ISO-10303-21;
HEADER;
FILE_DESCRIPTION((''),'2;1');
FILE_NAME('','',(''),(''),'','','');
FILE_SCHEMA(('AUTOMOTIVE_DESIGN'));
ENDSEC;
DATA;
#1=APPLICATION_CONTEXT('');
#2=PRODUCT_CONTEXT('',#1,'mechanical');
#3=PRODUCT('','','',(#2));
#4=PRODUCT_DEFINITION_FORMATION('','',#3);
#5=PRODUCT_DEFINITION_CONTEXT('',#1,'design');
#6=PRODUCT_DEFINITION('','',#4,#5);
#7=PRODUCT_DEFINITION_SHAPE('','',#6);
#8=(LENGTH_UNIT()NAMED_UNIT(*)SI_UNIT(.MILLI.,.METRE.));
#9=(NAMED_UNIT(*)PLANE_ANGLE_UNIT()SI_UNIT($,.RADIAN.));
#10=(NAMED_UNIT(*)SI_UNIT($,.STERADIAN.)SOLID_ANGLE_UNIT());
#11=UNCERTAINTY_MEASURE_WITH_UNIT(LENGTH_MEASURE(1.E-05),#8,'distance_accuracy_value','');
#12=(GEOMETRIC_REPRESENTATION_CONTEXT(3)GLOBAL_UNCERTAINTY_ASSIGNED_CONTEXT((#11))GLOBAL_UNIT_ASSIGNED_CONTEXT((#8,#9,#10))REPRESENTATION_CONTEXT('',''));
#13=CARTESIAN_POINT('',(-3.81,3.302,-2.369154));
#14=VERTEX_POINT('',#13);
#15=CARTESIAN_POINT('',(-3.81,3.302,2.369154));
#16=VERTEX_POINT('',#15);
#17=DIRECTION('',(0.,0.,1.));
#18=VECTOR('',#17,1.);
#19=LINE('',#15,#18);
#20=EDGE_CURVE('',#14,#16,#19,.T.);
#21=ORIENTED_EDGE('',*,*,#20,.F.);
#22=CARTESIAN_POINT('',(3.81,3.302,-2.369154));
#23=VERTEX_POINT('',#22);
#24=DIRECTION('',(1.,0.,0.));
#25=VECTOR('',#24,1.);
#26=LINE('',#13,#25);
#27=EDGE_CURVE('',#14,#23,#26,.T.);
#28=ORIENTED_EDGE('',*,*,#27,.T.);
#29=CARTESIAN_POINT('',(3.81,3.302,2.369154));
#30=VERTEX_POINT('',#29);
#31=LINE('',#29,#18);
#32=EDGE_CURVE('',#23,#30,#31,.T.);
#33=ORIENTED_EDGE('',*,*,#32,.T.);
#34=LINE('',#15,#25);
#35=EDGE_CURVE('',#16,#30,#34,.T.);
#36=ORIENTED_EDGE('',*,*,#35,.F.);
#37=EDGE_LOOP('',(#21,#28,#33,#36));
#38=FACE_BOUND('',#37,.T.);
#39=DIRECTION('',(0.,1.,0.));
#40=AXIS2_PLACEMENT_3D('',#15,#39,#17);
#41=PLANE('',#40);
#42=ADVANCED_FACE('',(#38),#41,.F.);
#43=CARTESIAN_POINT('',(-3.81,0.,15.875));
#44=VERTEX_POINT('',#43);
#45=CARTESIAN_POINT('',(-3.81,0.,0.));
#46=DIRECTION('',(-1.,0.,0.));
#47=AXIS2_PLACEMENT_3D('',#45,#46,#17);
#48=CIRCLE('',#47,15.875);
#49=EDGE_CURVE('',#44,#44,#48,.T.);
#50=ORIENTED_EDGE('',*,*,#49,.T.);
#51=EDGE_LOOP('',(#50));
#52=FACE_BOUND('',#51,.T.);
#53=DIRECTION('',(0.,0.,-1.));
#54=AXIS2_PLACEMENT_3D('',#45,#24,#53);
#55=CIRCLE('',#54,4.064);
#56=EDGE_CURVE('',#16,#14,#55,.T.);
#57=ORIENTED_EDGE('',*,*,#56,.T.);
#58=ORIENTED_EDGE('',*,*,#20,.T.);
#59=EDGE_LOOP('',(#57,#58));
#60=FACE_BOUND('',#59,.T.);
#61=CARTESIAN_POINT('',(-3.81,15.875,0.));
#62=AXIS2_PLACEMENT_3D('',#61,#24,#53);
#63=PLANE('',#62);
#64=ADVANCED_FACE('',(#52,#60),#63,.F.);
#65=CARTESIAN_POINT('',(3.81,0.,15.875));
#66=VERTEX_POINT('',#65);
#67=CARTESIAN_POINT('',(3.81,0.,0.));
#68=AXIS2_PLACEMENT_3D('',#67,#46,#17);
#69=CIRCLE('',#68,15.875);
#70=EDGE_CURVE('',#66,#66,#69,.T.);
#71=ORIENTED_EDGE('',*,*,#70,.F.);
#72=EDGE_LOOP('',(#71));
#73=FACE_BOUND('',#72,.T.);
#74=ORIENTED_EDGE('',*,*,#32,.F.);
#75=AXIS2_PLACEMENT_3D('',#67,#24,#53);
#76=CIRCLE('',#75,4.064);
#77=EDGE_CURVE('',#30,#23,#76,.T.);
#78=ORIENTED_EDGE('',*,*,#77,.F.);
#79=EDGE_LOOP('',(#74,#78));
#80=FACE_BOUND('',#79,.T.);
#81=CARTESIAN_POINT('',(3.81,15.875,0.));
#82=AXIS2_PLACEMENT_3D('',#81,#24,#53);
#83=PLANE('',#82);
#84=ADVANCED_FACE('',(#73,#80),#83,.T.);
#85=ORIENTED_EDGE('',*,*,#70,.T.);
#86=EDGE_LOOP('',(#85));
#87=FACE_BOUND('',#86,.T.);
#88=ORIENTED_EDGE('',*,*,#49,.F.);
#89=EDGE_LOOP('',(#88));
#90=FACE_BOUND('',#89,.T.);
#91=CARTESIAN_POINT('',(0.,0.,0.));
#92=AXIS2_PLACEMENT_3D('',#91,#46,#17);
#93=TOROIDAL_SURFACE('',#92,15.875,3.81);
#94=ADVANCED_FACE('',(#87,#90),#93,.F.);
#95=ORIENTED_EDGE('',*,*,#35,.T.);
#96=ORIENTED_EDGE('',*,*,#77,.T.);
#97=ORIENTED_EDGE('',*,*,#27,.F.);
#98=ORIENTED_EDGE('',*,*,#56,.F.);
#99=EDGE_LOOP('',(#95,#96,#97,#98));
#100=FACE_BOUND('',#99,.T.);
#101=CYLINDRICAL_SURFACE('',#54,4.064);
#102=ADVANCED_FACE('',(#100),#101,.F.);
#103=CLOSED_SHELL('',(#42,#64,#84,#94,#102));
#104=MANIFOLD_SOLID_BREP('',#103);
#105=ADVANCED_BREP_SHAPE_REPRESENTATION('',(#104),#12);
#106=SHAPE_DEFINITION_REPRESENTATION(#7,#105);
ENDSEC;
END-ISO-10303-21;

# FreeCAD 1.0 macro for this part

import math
import FreeCAD as App
import Part
import Sketcher
Q = App.Units.Quantity

doc = App.newDocument("Part")
body = doc.addObject("PartDesign::Body", "Body")

# Sketch on XY plane
sketch1 = doc.addObject("Sketcher::SketchObject", "Sketch")
body.addObject(sketch1)
sketch1.AttachmentSupport = (doc.XY_Plane, [""])
sketch1.MapMode = "FlatFace"
sketch1.addGeometry([
    Part.LineSegment(App.Vector(-3.8, 15.9, 0), App.Vector(-3.8, 0, 0)),
    Part.LineSegment(App.Vector(-3.8, 0, 0), App.Vector(3.8, 0, 0)),
    Part.LineSegment(App.Vector(3.8, 0, 0), App.Vector(3.8, 15.9, 0)),
    Part.ArcOfCircle(Part.Circle(App.Vector(0, 15.9, 0), App.Vector(0, 0, 1), 3.8), math.radians(180), math.radians(360)),
], False)
sketch1.addConstraint([
    Sketcher.Constraint("Coincident", 0, 2, 1, 1),
    Sketcher.Constraint("Coincident", 1, 2, 2, 1),
    Sketcher.Constraint("Tangent", 2, 2, 3, 2),
    Sketcher.Constraint("Tangent", 3, 1, 0, 1),
    Sketcher.Constraint("Vertical", 0),
    Sketcher.Constraint("Horizontal", 1),
    Sketcher.Constraint("Vertical", 2),
    Sketcher.Constraint("Symmetric", 0, 2, 1, 2, -1, 1),
    Sketcher.Constraint("Radius", 3, Q("0.15 in")),
    Sketcher.Constraint("DistanceY", 0, 2, 0, 1, Q("0.625 in")),
])
revolution = doc.addObject("PartDesign::Revolution", "Revolution")
body.addObject(revolution)
revolution.Profile = sketch1
revolution.ReferenceAxis = (sketch1, ["H_Axis"])
revolution.Angle = 360

# Sketch on YZ plane
sketch2 = doc.addObject("Sketcher::SketchObject", "Sketch001")
body.addObject(sketch2)
sketch2.AttachmentSupport = (doc.YZ_Plane, [""])
sketch2.MapMode = "FlatFace"
sketch2.AttachmentOffset = App.Placement(App.Vector(0, 0, 0.15 * 25.4), App.Rotation())
sketch2.addGeometry([
    Part.LineSegment(App.Vector(3.3, -2.4, 0), App.Vector(3.3, 2.4, 0)),
    Part.ArcOfCircle(Part.Circle(App.Vector(0, 0, 0), App.Vector(0, 0, 1), 4.1), math.radians(36), math.radians(324)),
], False)
sketch2.addConstraint([
    Sketcher.Constraint("Coincident", 0, 1, 1, 2),
    Sketcher.Constraint("Coincident", 1, 1, 0, 2),
    Sketcher.Constraint("Vertical", 0),
    Sketcher.Constraint("Coincident", 1, 3, -1, 1),
    Sketcher.Constraint("Radius", 1, Q("0.16 in")),
    Sketcher.Constraint("DistanceX", -1, 1, 0, 1, Q("0.13 in")),
])
pocket1 = doc.addObject("PartDesign::Pocket", "Pocket")
body.addObject(pocket1)
pocket1.Profile = sketch2
pocket1.Type = "ThroughAll"

doc.recompute()
